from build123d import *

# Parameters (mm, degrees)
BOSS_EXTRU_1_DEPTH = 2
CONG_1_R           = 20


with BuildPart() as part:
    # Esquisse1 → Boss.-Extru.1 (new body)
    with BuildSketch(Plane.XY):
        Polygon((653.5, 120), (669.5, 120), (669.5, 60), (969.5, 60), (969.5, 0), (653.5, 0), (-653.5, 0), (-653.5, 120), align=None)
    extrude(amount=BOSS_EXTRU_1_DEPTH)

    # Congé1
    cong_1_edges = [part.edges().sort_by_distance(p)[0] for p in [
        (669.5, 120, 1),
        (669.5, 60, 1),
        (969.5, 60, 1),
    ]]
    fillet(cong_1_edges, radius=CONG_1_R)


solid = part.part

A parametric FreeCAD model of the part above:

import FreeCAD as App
import Part
import Sketcher
from FreeCAD import Vector


def edges_at(feature, points):
    """Names of the edges that pass closest to the given points."""
    edges = feature.Shape.Edges
    near = lambda p: min(range(len(edges)), key=lambda i: edges[i].distToShape(Part.Vertex(*p))[0])
    return sorted({f"Edge{near(p) + 1}" for p in points})


def add_polygon(sketch, points):
    """Adds a closed chain of lines whose ends are joined by coincident constraints."""
    first, n = sketch.GeometryCount, len(points)
    for a, b in zip(points, points[1:] + points[:1]):
        sketch.addGeometry(Part.LineSegment(App.Vector(*a, 0), App.Vector(*b, 0)), False)
    for i in range(n):
        sketch.addConstraint(Sketcher.Constraint("Coincident", first + i, 2, first + (i + 1) % n, 1))

doc = App.newDocument("Part")
body = doc.addObject("PartDesign::Body", "Body")

# Sketch on XY plane
sketch1 = body.newObject("Sketcher::SketchObject", "Sketch")
sketch1.AttachmentSupport = (doc.getObject("XY_Plane"), [""])
sketch1.MapMode = "FlatFace"
add_polygon(sketch1, [(670, 120), (-654, 120), (-654, 0), (970, 0), (970, 60), (670, 60)])  # lines 0-5
sketch1.addConstraint([
    Sketcher.Constraint("Horizontal", 0),
    Sketcher.Constraint("Vertical", 1),
    Sketcher.Constraint("Horizontal", 2),
    Sketcher.Constraint("Vertical", 3),
    Sketcher.Constraint("Horizontal", 4),
    Sketcher.Constraint("Vertical", 5),
    Sketcher.Constraint("PointOnObject", 1, 2, -1),
    Sketcher.Constraint("Equal", 3, 5),
    Sketcher.Constraint("DistanceX", 0, 2, 0, 1, 1323.0),
    Sketcher.Constraint("DistanceX", 2, 1, 2, 2, 1623.0),
    Sketcher.Constraint("DistanceY", 1, 2, 1, 1, 120.0),
    Sketcher.Constraint("DistanceX", 0, 2, -1, 1, 653.5),
])
pad1 = body.newObject("PartDesign::Pad", "Pad")
pad1.Profile = sketch1
pad1.Length = 2
doc.recompute()

fillet = body.newObject("PartDesign::Fillet", "Fillet")
fillet.Base = (pad1, edges_at(pad1, [(669.5, 120, 1), (669.5, 60, 1), (969.5, 60, 1)]))
fillet.Radius = 20

doc.recompute()
